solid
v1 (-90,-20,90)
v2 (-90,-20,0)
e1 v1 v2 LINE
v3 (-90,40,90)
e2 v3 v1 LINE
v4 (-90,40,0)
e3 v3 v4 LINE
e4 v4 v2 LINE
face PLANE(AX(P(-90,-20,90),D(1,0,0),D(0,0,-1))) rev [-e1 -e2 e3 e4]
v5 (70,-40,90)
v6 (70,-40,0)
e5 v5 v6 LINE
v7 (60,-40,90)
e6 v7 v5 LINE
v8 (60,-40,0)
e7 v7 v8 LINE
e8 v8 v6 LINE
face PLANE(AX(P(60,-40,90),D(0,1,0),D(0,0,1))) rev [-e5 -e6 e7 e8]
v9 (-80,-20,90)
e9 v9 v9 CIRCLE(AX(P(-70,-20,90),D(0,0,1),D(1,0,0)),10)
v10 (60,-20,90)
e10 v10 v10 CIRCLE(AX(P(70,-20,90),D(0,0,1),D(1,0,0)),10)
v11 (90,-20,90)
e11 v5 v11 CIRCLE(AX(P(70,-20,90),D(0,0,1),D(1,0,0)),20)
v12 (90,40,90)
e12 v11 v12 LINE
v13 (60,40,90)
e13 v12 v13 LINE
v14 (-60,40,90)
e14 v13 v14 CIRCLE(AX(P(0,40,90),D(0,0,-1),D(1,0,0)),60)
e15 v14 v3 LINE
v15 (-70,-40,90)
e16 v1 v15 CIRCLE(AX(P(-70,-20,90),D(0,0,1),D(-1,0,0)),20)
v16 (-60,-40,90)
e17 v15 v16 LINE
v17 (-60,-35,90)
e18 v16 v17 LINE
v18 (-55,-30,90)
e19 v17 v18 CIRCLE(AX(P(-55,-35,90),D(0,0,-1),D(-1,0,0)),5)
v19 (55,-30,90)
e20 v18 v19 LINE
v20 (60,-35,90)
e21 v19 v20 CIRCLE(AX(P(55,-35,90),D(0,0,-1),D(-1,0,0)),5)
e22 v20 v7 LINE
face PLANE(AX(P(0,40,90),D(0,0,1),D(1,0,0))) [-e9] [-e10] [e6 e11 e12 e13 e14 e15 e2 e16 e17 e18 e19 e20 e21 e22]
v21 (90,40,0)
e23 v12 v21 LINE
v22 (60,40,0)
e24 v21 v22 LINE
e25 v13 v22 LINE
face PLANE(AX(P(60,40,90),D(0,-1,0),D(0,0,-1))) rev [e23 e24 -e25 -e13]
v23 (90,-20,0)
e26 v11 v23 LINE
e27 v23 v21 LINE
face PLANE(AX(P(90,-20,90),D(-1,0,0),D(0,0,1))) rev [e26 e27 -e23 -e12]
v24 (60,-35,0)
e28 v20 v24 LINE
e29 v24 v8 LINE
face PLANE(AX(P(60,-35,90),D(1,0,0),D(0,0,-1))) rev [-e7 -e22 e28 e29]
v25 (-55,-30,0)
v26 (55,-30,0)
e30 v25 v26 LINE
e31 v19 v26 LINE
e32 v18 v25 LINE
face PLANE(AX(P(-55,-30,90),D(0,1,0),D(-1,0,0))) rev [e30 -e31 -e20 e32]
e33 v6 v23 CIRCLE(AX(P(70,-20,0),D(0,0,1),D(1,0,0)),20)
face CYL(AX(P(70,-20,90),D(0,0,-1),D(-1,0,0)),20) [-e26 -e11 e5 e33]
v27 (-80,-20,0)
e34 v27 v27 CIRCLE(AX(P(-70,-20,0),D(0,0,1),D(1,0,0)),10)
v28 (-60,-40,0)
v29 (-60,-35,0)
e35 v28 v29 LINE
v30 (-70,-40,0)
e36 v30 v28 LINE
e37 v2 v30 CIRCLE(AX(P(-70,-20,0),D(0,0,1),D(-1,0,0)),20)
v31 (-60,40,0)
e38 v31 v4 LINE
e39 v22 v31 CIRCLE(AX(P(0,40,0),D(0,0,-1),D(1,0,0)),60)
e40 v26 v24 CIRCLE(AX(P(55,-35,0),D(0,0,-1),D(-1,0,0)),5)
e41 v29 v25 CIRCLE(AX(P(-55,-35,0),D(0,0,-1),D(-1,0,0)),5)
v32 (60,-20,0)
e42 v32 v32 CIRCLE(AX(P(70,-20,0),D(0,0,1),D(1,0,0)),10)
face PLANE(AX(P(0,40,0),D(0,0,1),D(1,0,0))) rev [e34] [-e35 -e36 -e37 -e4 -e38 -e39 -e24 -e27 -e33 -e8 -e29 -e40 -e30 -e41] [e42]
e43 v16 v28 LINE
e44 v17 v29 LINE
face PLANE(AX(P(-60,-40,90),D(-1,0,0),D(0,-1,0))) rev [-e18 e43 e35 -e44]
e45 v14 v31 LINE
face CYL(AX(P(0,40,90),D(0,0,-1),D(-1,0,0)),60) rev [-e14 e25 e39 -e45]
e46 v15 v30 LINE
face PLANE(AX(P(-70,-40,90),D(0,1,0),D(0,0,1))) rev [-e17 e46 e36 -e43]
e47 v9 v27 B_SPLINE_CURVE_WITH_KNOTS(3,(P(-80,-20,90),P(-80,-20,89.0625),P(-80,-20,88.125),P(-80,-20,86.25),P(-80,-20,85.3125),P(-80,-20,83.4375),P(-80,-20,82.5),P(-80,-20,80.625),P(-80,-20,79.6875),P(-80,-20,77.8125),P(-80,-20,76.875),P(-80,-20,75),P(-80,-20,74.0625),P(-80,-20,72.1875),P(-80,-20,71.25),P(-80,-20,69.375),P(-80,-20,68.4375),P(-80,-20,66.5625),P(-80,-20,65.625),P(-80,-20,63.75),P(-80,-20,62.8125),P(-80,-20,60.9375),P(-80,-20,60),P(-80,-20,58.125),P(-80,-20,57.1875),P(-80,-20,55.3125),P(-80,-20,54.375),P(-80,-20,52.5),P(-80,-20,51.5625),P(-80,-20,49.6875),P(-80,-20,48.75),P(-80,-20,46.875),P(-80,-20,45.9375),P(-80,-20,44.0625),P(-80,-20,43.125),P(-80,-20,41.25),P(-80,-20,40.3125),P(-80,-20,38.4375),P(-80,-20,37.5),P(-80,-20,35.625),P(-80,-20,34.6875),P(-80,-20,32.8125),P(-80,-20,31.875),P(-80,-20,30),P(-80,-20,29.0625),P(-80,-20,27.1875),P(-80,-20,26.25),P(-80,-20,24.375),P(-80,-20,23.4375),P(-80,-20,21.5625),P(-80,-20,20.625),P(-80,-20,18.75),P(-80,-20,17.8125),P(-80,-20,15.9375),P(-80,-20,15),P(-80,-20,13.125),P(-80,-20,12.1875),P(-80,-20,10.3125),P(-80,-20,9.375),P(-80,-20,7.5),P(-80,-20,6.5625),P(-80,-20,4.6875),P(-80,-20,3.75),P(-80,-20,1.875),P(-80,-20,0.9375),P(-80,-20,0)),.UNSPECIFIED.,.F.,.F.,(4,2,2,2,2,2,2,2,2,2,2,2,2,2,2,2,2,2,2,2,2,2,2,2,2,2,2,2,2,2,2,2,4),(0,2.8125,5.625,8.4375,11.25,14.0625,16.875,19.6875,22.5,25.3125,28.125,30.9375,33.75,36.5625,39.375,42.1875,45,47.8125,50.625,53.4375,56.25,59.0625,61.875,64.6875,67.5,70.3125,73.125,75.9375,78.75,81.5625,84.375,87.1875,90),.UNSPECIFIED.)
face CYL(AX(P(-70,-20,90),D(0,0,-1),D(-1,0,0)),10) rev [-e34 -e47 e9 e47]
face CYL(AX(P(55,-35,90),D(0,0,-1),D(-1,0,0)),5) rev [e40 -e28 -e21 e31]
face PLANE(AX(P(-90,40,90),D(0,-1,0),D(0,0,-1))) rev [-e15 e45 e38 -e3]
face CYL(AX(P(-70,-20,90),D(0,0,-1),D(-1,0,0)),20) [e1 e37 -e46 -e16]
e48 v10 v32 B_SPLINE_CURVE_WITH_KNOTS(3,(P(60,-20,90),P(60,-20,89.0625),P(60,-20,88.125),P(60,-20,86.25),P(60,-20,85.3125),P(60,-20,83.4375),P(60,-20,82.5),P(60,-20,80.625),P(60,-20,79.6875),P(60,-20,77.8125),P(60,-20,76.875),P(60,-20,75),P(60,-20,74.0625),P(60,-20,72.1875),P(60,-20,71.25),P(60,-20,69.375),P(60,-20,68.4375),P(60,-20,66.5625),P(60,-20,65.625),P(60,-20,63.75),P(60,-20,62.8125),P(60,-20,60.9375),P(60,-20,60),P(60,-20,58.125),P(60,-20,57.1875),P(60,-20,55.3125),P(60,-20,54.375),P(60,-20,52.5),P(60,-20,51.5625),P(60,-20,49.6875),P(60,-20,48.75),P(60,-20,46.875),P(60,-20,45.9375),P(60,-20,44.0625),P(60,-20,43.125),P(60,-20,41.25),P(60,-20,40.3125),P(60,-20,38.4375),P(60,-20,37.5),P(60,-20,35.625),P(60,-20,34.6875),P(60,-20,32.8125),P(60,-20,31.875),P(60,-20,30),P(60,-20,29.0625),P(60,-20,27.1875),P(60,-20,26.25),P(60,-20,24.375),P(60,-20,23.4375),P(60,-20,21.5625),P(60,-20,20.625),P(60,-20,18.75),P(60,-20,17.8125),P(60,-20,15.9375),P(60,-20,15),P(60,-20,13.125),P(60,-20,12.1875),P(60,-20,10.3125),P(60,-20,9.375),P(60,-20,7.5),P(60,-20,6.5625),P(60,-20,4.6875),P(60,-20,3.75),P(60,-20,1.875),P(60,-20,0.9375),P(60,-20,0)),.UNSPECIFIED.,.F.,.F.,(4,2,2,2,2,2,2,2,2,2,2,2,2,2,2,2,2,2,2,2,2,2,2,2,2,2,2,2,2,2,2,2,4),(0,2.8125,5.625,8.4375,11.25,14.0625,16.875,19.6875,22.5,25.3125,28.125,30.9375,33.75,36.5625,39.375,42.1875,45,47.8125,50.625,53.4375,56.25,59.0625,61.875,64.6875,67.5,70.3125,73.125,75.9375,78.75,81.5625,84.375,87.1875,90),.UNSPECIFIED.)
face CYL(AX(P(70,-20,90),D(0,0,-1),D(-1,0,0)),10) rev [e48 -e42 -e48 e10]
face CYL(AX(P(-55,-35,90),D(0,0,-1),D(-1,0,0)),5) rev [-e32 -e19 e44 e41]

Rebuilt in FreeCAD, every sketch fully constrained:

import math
import FreeCAD as App
import Part
import Sketcher

V = App.Vector

doc = App.newDocument("Part")
body = doc.addObject("PartDesign::Body", "Body")

sketch1 = body.newObject("Sketcher::SketchObject", "Sketch")
sketch1.AttachmentSupport = (doc.getObject("XY_Plane"), [""])
sketch1.MapMode = "FlatFace"
sketch1.addGeometry([
    Part.LineSegment(V(90, 40, 0), V(60, 40, 0)),
    Part.ArcOfCircle(Part.Circle(V(0, 40, 0), V(0, 0, 1), 60), math.radians(180), math.radians(360)),
    Part.LineSegment(V(-60, 40, 0), V(-90, 40, 0)),
    Part.LineSegment(V(-90, 40, 0), V(-90, -20, 0)),
    Part.ArcOfCircle(Part.Circle(V(-70, -20, 0), V(0, 0, 1), 20), math.radians(180), math.radians(270)),
    Part.LineSegment(V(-70, -40, 0), V(-60, -40, 0)),
    Part.LineSegment(V(-60, -40, 0), V(-60, -35, 0)),
    Part.ArcOfCircle(Part.Circle(V(-55, -35, 0), V(0, 0, 1), 5), math.radians(90), math.radians(180)),
    Part.LineSegment(V(-55, -30, 0), V(55, -30, 0)),
    Part.ArcOfCircle(Part.Circle(V(55, -35, 0), V(0, 0, 1), 5), math.radians(0), math.radians(90)),
    Part.LineSegment(V(60, -35, 0), V(60, -40, 0)),
    Part.LineSegment(V(60, -40, 0), V(70, -40, 0)),
    Part.ArcOfCircle(Part.Circle(V(70, -20, 0), V(0, 0, 1), 20), math.radians(-90), math.radians(0)),
    Part.LineSegment(V(90, -20, 0), V(90, 40, 0)),
    Part.Circle(V(70, -20, 0), V(0, 0, 1), 10),
    Part.Circle(V(-70, -20, 0), V(0, 0, 1), 10),
], False)
sketch1.addConstraint([
    Sketcher.Constraint("Coincident", 0, 2, 1, 2),
    Sketcher.Constraint("Coincident", 1, 1, 2, 1),
    Sketcher.Constraint("Coincident", 2, 2, 3, 1),
    Sketcher.Constraint("Tangent", 3, 2, 4, 1),
    Sketcher.Constraint("Tangent", 4, 2, 5, 1),
    Sketcher.Constraint("Coincident", 5, 2, 6, 1),
    Sketcher.Constraint("Tangent", 6, 2, 7, 2),
    Sketcher.Constraint("Tangent", 7, 1, 8, 1),
    Sketcher.Constraint("Tangent", 8, 2, 9, 2),
    Sketcher.Constraint("Tangent", 9, 1, 10, 1),
    Sketcher.Constraint("Coincident", 10, 2, 11, 1),
    Sketcher.Constraint("Tangent", 11, 2, 12, 1),
    Sketcher.Constraint("Tangent", 12, 2, 13, 1),
    Sketcher.Constraint("Coincident", 13, 2, 0, 1),
    Sketcher.Constraint("Horizontal", 0),
    Sketcher.Constraint("Horizontal", 2),
    Sketcher.Constraint("Vertical", 3),
    Sketcher.Constraint("Horizontal", 5),
    Sketcher.Constraint("Vertical", 6),
    Sketcher.Constraint("Horizontal", 8),
    Sketcher.Constraint("Vertical", 10),
    Sketcher.Constraint("Horizontal", 11),
    Sketcher.Constraint("Vertical", 13),
    Sketcher.Constraint("Coincident", 14, 3, 12, 3),
    Sketcher.Constraint("Coincident", 15, 3, 4, 3),
    Sketcher.Constraint("Equal", 7, 9),
    Sketcher.Constraint("Equal", 4, 12),
    Sketcher.Constraint("Equal", 14, 15),
    Sketcher.Constraint("Symmetric", 0, 2, 5, 2, -1, 1),
    Sketcher.Constraint("Symmetric", 1, 1, 10, 2, -1, 1),
    Sketcher.Constraint("Symmetric", 4, 3, 12, 3, -2),
    Sketcher.Constraint("PointOnObject", 1, 3, -2),
    Sketcher.Constraint("Horizontal", 1, 3, 0, 2),
    Sketcher.Constraint("Diameter", 14, 20.0),
    Sketcher.Constraint("Radius", 1, 60.0),
    Sketcher.Constraint("Radius", 4, 20.0),
    Sketcher.Constraint("Radius", 7, 5.0),
    Sketcher.Constraint("DistanceX", 0, 2, 0, 1, 30.0),
    Sketcher.Constraint("DistanceY", 3, 2, 3, 1, 60.0),
    Sketcher.Constraint("DistanceY", 6, 1, 6, 2, 5.0),
])
pad1 = body.newObject("PartDesign::Pad", "Pad")
pad1.Profile = sketch1
pad1.Length = 90

doc.recompute()
